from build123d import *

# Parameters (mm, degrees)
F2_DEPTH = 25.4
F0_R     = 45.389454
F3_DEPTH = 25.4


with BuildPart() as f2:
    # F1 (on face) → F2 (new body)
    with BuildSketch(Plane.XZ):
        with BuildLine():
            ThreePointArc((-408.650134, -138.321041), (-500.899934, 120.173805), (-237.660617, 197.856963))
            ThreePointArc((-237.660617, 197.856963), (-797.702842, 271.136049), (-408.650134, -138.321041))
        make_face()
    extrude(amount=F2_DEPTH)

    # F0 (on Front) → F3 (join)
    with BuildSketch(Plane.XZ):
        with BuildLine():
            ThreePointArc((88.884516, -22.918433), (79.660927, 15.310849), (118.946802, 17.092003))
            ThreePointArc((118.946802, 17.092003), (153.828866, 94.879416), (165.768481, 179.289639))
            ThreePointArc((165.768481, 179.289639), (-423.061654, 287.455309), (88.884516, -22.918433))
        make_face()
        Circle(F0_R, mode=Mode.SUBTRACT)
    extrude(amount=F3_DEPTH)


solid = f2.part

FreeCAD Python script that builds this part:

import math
import FreeCAD as App
import Part
import Sketcher
Q = App.Units.Quantity

doc = App.newDocument("Part")
body = doc.addObject("PartDesign::Body", "Body")

sketch1 = body.newObject("Sketcher::SketchObject", "Sketch")
sketch1.AttachmentSupport = (doc.getObject("XZ_Plane"), [""])
sketch1.MapMode = "FlatFace"
sketch1.addGeometry([
    Part.ArcOfCircle(Part.Circle(App.Vector(-333, 35, 0), App.Vector(0, 0, 1), 189), math.radians(60), math.radians(246)),
    Part.ArcOfCircle(Part.Circle(App.Vector(-531, 135, 0), App.Vector(0, 0, 1), 300), math.radians(12), math.radians(294)),
], False)
sketch1.addConstraint([
    Sketcher.Constraint("Coincident", 0, 1, 1, 1),
    Sketcher.Constraint("Coincident", 1, 2, 0, 2),
    Sketcher.Constraint("Radius", 1, Q("299.600691 mm")),
    Sketcher.Constraint("Radius", 0, Q("188.876485 mm")),
    Sketcher.Constraint("DistanceY", 1, 2, -1, 1, Q("138.321041 mm")),
    Sketcher.Constraint("DistanceY", 0, 3, 1, 3, Q("100.764842 mm")),
    Sketcher.Constraint("DistanceY", 0, 3, 0, 1, Q("163.311308 mm")),
    Sketcher.Constraint("DistanceX", 0, 3, -1, 1, Q("332.548674 mm")),
])
pad1 = body.newObject("PartDesign::Pad", "Pad")
pad1.Profile = sketch1
pad1.Length = Q("1 in")

sketch2 = body.newObject("Sketcher::SketchObject", "Sketch001")
sketch2.AttachmentSupport = (doc.getObject("XZ_Plane"), [""])
sketch2.MapMode = "FlatFace"
sketch2.addGeometry([
    Part.ArcOfCircle(Part.Circle(App.Vector(100, 0, 0), App.Vector(0, 0, 1), 25), math.radians(42), math.radians(244)),
    Part.ArcOfCircle(Part.Circle(App.Vector(-139, 179, 0), App.Vector(0, 0, 1), 304), math.radians(-32), math.radians(0)),
    Part.ArcOfCircle(Part.Circle(App.Vector(-139, 179, 0), App.Vector(0, 0, 1), 304), math.radians(0), math.radians(318)),
    Part.Circle(App.Vector(0, 0, 0), App.Vector(0, 0, 1), 45),
], False)
sketch2.addConstraint([
    Sketcher.Constraint("Coincident", 0, 1, 1, 1),
    Sketcher.Constraint("Tangent", 1, 2, 2, 1),
    Sketcher.Constraint("Coincident", 2, 2, 0, 2),
    Sketcher.Constraint("Coincident", 3, 3, -1, 1),
    Sketcher.Constraint("Equal", 1, 2),
    Sketcher.Constraint("PointOnObject", 0, 3, -1),
    Sketcher.Constraint("Horizontal", 2, 3, 1, 2),
    Sketcher.Constraint("Diameter", 3, Q("90.778908 mm")),
    Sketcher.Constraint("Radius", 2, Q("304.349862 mm")),
    Sketcher.Constraint("Radius", 0, Q("25.488505 mm")),
    Sketcher.Constraint("DistanceX", -1, 1, 0, 3, Q("100.038409 mm")),
    Sketcher.Constraint("DistanceY", -1, 1, 1, 3, Q("179.28964 mm")),
    Sketcher.Constraint("DistanceX", 2, 3, -1, 1, Q("138.581381 mm")),
])
pad2 = body.newObject("PartDesign::Pad", "Pad001")
pad2.Profile = sketch2
pad2.Length = Q("1 in")

doc.recompute()
